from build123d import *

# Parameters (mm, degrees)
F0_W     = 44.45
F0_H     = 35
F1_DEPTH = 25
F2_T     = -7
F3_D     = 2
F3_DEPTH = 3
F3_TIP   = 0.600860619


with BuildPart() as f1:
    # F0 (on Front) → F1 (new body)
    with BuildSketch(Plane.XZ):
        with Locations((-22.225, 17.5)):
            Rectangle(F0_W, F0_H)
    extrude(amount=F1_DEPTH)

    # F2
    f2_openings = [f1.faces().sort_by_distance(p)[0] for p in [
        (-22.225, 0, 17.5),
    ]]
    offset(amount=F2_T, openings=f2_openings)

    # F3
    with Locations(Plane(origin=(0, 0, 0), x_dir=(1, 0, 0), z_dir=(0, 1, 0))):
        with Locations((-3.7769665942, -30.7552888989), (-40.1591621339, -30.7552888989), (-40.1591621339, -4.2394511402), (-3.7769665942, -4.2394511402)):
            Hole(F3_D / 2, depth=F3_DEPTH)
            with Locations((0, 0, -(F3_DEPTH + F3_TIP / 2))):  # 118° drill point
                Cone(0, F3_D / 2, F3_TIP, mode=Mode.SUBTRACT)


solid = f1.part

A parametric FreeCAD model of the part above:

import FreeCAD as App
import Part
import Sketcher


def faces_at(feature, points):
    """Names of the faces that lie closest to the given points."""
    faces = feature.Shape.Faces
    near = lambda p: min(range(len(faces)), key=lambda i: faces[i].distToShape(Part.Vertex(*p))[0])
    return sorted({f"Face{near(p) + 1}" for p in points})

doc = App.newDocument("Part")
body = doc.addObject("PartDesign::Body", "Body")

# Sketch on XZ plane
sketch1 = body.newObject("Sketcher::SketchObject", "Sketch")
sketch1.AttachmentSupport = (doc.getObject("XZ_Plane"), [""])
sketch1.MapMode = "FlatFace"
sketch1.addGeometry(Part.LineSegment(App.Vector(-44, 35, 0), App.Vector(-44, 0, 0)), False)
sketch1.addGeometry(Part.LineSegment(App.Vector(-44, 0, 0), App.Vector(0, 0, 0)), False)
sketch1.addGeometry(Part.LineSegment(App.Vector(0, 0, 0), App.Vector(0, 35, 0)), False)
sketch1.addGeometry(Part.LineSegment(App.Vector(0, 35, 0), App.Vector(-44, 35, 0)), False)
sketch1.addConstraint(Sketcher.Constraint("Coincident", 0, 2, 1, 1))
sketch1.addConstraint(Sketcher.Constraint("Coincident", 1, 2, 2, 1))
sketch1.addConstraint(Sketcher.Constraint("Coincident", 2, 2, 3, 1))
sketch1.addConstraint(Sketcher.Constraint("Coincident", 3, 2, 0, 1))
sketch1.addConstraint(Sketcher.Constraint("Vertical", 0))
sketch1.addConstraint(Sketcher.Constraint("Horizontal", 1))
sketch1.addConstraint(Sketcher.Constraint("Vertical", 2))
sketch1.addConstraint(Sketcher.Constraint("Horizontal", 3))
sketch1.addConstraint(Sketcher.Constraint("Coincident", 1, 2, -1, 1))
sketch1.addConstraint(Sketcher.Constraint("DistanceY", 0, 2, 0, 1, 35.0))
sketch1.addConstraint(Sketcher.Constraint("DistanceX", 1, 1, 1, 2, 44.45))
pad1 = body.newObject("PartDesign::Pad", "Pad")
pad1.Profile = sketch1
pad1.Length = 25
doc.recompute()

thickness = body.newObject("PartDesign::Thickness", "Thickness")
thickness.Base = (pad1, faces_at(pad1, [(-22.225, 0, 17.5)]))
thickness.Value = 7
thickness.Reversed = True
thickness.Join = "Arc"

# Sketch on XZ plane
sketch2 = body.newObject("Sketcher::SketchObject", "Sketch001")
sketch2.AttachmentSupport = (doc.getObject("XZ_Plane"), [""])
sketch2.MapMode = "FlatFace"
sketch2.addGeometry(Part.Circle(App.Vector(-3.8, 30.8, 0), App.Vector(0, 0, 1), 1), False)
sketch2.addGeometry(Part.Circle(App.Vector(-40.2, 30.8, 0), App.Vector(0, 0, 1), 1), False)
sketch2.addGeometry(Part.Circle(App.Vector(-40.2, 4.2, 0), App.Vector(0, 0, 1), 1), False)
sketch2.addGeometry(Part.Circle(App.Vector(-3.8, 4.2, 0), App.Vector(0, 0, 1), 1), False)
sketch2.addConstraint(Sketcher.Constraint("Equal", 0, 1))
sketch2.addConstraint(Sketcher.Constraint("Equal", 1, 2))
sketch2.addConstraint(Sketcher.Constraint("Equal", 2, 3))
sketch2.addConstraint(Sketcher.Constraint("Horizontal", 0, 3, 1, 3))
sketch2.addConstraint(Sketcher.Constraint("Horizontal", 2, 3, 3, 3))
sketch2.addConstraint(Sketcher.Constraint("Vertical", 1, 3, 2, 3))
sketch2.addConstraint(Sketcher.Constraint("Vertical", 0, 3, 3, 3))
sketch2.addConstraint(Sketcher.Constraint("Diameter", 0, 2.0))
sketch2.addConstraint(Sketcher.Constraint("DistanceY", -1, 1, 0, 3, 30.755289))
sketch2.addConstraint(Sketcher.Constraint("DistanceY", -1, 1, 2, 3, 4.239451))
sketch2.addConstraint(Sketcher.Constraint("DistanceX", 0, 3, -1, 1, 3.776967))
sketch2.addConstraint(Sketcher.Constraint("DistanceX", 1, 3, -1, 1, 40.159162))
doc.recompute()
hole = body.newObject("PartDesign::Hole", "Hole")
hole.Profile = sketch2
hole.ThreadType = "None"
hole.Diameter = 2
hole.DepthType = "Dimension"
hole.Depth = 3
hole.DrillPoint = "Angled"
hole.DrillPointAngle = 118
hole.Reversed = True

doc.recompute()
